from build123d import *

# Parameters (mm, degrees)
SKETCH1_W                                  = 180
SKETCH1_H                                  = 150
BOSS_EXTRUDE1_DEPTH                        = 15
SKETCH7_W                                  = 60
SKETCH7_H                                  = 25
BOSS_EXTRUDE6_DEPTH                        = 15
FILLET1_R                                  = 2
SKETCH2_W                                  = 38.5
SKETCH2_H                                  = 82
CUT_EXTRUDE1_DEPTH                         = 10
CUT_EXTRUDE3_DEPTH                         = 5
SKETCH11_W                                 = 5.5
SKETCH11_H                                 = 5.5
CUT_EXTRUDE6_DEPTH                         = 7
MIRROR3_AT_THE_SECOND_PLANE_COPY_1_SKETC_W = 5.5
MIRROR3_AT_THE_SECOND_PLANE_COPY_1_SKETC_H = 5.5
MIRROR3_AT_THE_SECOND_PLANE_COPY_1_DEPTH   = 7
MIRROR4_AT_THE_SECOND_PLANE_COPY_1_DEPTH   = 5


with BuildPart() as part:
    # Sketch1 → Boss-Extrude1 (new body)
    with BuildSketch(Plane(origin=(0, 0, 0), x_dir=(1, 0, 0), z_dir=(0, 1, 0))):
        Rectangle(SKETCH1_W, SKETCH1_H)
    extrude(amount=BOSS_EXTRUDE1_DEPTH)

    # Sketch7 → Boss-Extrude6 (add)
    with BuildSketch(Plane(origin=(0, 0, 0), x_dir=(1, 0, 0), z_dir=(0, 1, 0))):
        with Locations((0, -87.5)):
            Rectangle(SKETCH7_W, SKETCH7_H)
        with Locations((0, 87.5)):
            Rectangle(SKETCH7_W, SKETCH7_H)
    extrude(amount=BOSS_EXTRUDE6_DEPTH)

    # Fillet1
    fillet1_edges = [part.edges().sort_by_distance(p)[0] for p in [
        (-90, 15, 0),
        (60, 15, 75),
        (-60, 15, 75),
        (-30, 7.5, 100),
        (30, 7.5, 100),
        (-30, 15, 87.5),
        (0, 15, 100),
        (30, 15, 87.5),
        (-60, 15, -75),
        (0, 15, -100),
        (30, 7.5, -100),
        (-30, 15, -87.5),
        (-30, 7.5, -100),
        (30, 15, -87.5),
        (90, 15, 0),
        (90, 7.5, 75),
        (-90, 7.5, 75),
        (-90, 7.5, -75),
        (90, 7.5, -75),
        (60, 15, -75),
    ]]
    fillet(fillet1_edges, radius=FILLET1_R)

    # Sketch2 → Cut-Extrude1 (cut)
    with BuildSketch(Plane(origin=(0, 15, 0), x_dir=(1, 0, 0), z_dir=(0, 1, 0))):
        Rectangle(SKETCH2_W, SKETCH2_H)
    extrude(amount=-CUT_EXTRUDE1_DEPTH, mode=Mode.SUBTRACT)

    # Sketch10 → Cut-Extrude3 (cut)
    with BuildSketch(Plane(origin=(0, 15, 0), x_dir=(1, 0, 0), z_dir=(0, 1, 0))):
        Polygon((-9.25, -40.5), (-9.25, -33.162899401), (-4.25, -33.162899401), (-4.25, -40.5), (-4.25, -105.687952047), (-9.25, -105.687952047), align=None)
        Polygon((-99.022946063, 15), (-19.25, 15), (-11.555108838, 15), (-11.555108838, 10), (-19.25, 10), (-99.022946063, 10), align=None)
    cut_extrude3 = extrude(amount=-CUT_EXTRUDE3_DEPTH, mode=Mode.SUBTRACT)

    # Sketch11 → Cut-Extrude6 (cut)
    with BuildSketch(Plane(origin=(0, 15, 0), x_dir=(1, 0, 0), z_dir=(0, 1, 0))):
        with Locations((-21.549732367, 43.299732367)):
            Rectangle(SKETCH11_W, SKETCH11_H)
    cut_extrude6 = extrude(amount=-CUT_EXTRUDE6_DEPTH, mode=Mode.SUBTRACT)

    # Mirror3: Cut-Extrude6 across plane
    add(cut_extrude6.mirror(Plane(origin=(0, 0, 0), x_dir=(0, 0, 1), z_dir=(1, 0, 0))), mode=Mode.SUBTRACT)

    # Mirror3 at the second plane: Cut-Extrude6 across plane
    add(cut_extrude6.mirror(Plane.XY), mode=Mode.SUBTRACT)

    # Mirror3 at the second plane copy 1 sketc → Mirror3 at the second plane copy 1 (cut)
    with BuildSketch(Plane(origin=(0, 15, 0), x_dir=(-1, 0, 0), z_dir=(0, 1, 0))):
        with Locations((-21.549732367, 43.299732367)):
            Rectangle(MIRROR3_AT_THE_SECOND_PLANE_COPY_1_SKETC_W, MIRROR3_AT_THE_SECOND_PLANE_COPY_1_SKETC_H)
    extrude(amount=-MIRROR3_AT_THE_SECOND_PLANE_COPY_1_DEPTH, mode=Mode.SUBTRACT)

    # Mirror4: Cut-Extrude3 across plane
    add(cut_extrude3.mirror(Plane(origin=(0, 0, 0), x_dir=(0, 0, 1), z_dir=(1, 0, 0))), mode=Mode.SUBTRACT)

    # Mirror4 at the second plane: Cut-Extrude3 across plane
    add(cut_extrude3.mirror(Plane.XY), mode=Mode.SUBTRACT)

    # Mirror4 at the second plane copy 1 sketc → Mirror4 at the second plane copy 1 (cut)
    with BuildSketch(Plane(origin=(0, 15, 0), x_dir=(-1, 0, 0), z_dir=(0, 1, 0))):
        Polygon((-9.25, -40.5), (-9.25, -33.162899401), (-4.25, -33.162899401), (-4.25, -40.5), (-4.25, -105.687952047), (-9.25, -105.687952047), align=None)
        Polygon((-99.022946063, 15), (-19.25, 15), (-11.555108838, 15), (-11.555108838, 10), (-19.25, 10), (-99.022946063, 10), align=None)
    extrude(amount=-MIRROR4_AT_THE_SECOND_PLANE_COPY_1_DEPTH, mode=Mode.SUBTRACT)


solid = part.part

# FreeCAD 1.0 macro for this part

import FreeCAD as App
import Part
import Sketcher

V = App.Vector
Q = App.Units.Quantity


def edges_at(feature, points):
    """Names of the edges that pass closest to the given points."""
    edges = feature.Shape.Edges
    near = lambda p: min(range(len(edges)), key=lambda i: edges[i].distToShape(Part.Vertex(*p))[0])
    return sorted({f"Edge{near(p) + 1}" for p in points})


def add_polygon(sketch, points):
    """Adds a closed chain of lines whose ends are joined by coincident constraints."""
    first, n = sketch.GeometryCount, len(points)
    for a, b in zip(points, points[1:] + points[:1]):
        sketch.addGeometry(Part.LineSegment(App.Vector(*a, 0), App.Vector(*b, 0)), False)
    for i in range(n):
        sketch.addConstraint(Sketcher.Constraint("Coincident", first + i, 2, first + (i + 1) % n, 1))

doc = App.newDocument("Part")
body = doc.addObject("PartDesign::Body", "Body")

sketch1 = doc.addObject("Sketcher::SketchObject", "Sketch")
body.addObject(sketch1)
sketch1.AttachmentSupport = (doc.XZ_Plane, [""])
sketch1.MapMode = "FlatFace"
add_polygon(sketch1, [(-90, -75), (-90, 75), (90, 75), (90, -75)])
sketch1.addConstraint([
    Sketcher.Constraint("Vertical", 0),
    Sketcher.Constraint("Horizontal", 1),
    Sketcher.Constraint("Vertical", 2),
    Sketcher.Constraint("Horizontal", 3),
    Sketcher.Constraint("Symmetric", 0, 2, 2, 2, -1, 1),
    Sketcher.Constraint("DistanceX", 1, 1, 1, 2, Q("180 mm")),
    Sketcher.Constraint("DistanceY", 0, 1, 0, 2, Q("150 mm")),
])
pad1 = doc.addObject("PartDesign::Pad", "Pad")
body.addObject(pad1)
pad1.Profile = sketch1
pad1.Length = 15
pad1.Reversed = True

sketch2 = doc.addObject("Sketcher::SketchObject", "Sketch001")
body.addObject(sketch2)
sketch2.AttachmentSupport = (doc.XZ_Plane, [""])
sketch2.MapMode = "FlatFace"
add_polygon(sketch2, [(-30, 75), (-30, 100), (30, 100), (30, 75)])
add_polygon(sketch2, [(-30, -100), (-30, -75), (30, -75), (30, -100)])
sketch2.addConstraint([
    Sketcher.Constraint("Vertical", 0),
    Sketcher.Constraint("Horizontal", 1),
    Sketcher.Constraint("Vertical", 2),
    Sketcher.Constraint("Horizontal", 3),
    Sketcher.Constraint("Vertical", 4),
    Sketcher.Constraint("Horizontal", 5),
    Sketcher.Constraint("Vertical", 6),
    Sketcher.Constraint("Horizontal", 7),
    Sketcher.Constraint("Symmetric", 2, 2, 4, 2, -1, 1),
    Sketcher.Constraint("Symmetric", 0, 2, 6, 2, -1, 1),
    Sketcher.Constraint("Vertical", 3, 2, 4, 2),
    Sketcher.Constraint("DistanceX", 1, 1, 1, 2, Q("60 mm")),
    Sketcher.Constraint("DistanceY", 0, 1, 0, 2, Q("25 mm")),
    Sketcher.Constraint("DistanceY", -1, 1, 0, 2, Q("100 mm")),
])
pad2 = doc.addObject("PartDesign::Pad", "Pad001")
body.addObject(pad2)
pad2.Profile = sketch2
pad2.Length = 15
pad2.Reversed = True
doc.recompute()

fillet = doc.addObject("PartDesign::Fillet", "Fillet")
body.addObject(fillet)
fillet.Base = (pad2, edges_at(pad2, [
    (-90, 15, 0),
    (60, 15, 75),
    (-60, 15, 75),
    (-30, 7.5, 100),
    (30, 7.5, 100),
    (-30, 15, 87.5),
    (0, 15, 100),
    (30, 15, 87.5),
    (-60, 15, -75),
    (0, 15, -100),
    (30, 7.5, -100),
    (-30, 15, -87.5),
    (-30, 7.5, -100),
    (30, 15, -87.5),
    (90, 15, 0),
    (90, 7.5, 75),
    (-90, 7.5, 75),
    (-90, 7.5, -75),
    (90, 7.5, -75),
    (60, 15, -75),
]))
fillet.Radius = 2

sketch3 = doc.addObject("Sketcher::SketchObject", "Sketch002")
body.addObject(sketch3)
sketch3.AttachmentSupport = (doc.XZ_Plane, [""])
sketch3.MapMode = "FlatFace"
sketch3.AttachmentOffset = App.Placement(V(0, 0, -15), App.Rotation())
add_polygon(sketch3, [(-19, -41), (-19, 41), (19, 41), (19, -41)])
sketch3.addConstraint([
    Sketcher.Constraint("Vertical", 0),
    Sketcher.Constraint("Horizontal", 1),
    Sketcher.Constraint("Vertical", 2),
    Sketcher.Constraint("Horizontal", 3),
    Sketcher.Constraint("Symmetric", 0, 2, 2, 2, -1, 1),
    Sketcher.Constraint("DistanceY", 0, 1, 0, 2, Q("82 mm")),
    Sketcher.Constraint("DistanceX", 1, 1, 1, 2, Q("38.5 mm")),
])
pocket1 = doc.addObject("PartDesign::Pocket", "Pocket")
body.addObject(pocket1)
pocket1.Profile = sketch3
pocket1.Length = 10
pocket1.Reversed = True

sketch4 = doc.addObject("Sketcher::SketchObject", "Sketch003")
body.addObject(sketch4)
sketch4.AttachmentSupport = (doc.XZ_Plane, [""])
sketch4.MapMode = "FlatFace"
sketch4.AttachmentOffset = App.Placement(V(0, 0, -15), App.Rotation())
add_polygon(sketch4, [(-9, 33), (-9, 106), (-4, 106), (-4, 33)])
add_polygon(sketch4, [(-12, -15), (-99, -15), (-99, -10), (-12, -10)])
sketch4.addConstraint([
    Sketcher.Constraint("Vertical", 0),
    Sketcher.Constraint("Horizontal", 1),
    Sketcher.Constraint("Vertical", 2),
    Sketcher.Constraint("Horizontal", 3),
    Sketcher.Constraint("Horizontal", 4),
    Sketcher.Constraint("Vertical", 5),
    Sketcher.Constraint("Horizontal", 6),
    Sketcher.Constraint("Vertical", 7),
    Sketcher.Constraint("Equal", 3, 5),
    Sketcher.Constraint("DistanceX", 1, 1, 1, 2, Q("5 mm")),
    Sketcher.Constraint("DistanceY", 4, 2, -1, 1, Q("15 mm")),
    Sketcher.Constraint("DistanceX", 0, 2, -1, 1, Q("9.25 mm")),
    Sketcher.Constraint("DistanceY", -1, 1, 2, 2, Q("33.162899 mm")),
    Sketcher.Constraint("DistanceX", 4, 2, 4, 1, Q("87.467837 mm")),
    Sketcher.Constraint("DistanceY", 0, 1, 0, 2, Q("72.525053 mm")),
    Sketcher.Constraint("DistanceX", 6, 2, -1, 1, Q("11.555109 mm")),
])
pocket2 = doc.addObject("PartDesign::Pocket", "Pocket001")
body.addObject(pocket2)
pocket2.Profile = sketch4
pocket2.Length = 5
pocket2.Reversed = True

sketch5 = doc.addObject("Sketcher::SketchObject", "Sketch004")
body.addObject(sketch5)
sketch5.AttachmentSupport = (doc.XZ_Plane, [""])
sketch5.MapMode = "FlatFace"
sketch5.AttachmentOffset = App.Placement(V(0, 0, -15), App.Rotation())
add_polygon(sketch5, [(-24, -46), (-24, -41), (-19, -41), (-19, -46)])
sketch5.addConstraint([
    Sketcher.Constraint("Vertical", 0),
    Sketcher.Constraint("Horizontal", 1),
    Sketcher.Constraint("Vertical", 2),
    Sketcher.Constraint("Horizontal", 3),
    Sketcher.Constraint("Equal", 3, 0),
    Sketcher.Constraint("DistanceX", 1, 1, 1, 2, Q("5.5 mm")),
    Sketcher.Constraint("DistanceX", 0, 2, -1, 1, Q("24.299732 mm")),
    Sketcher.Constraint("DistanceY", 0, 2, -1, 1, Q("40.549732 mm")),
])
pocket3 = doc.addObject("PartDesign::Pocket", "Pocket002")
body.addObject(pocket3)
pocket3.Profile = sketch5
pocket3.Length = 7
pocket3.Reversed = True
doc.recompute()

mirrored = doc.addObject("PartDesign::Mirrored", "Mirrored")
body.addObject(mirrored)
mirrored.Originals = [pocket3]
mirrored.MirrorPlane = (doc.YZ_Plane, [""])
body.Tip = mirrored
doc.recompute()

mirrored2 = doc.addObject("PartDesign::Mirrored", "Mirrored001")
body.addObject(mirrored2)
mirrored2.Originals = [pocket3]
mirrored2.MirrorPlane = (doc.XY_Plane, [""])
body.Tip = mirrored2

sketch6 = doc.addObject("Sketcher::SketchObject", "Sketch005")
body.addObject(sketch6)
sketch6.AttachmentSupport = (doc.XZ_Plane, [""])
sketch6.MapMode = "FlatFace"
sketch6.AttachmentOffset = App.Placement(V(0, 0, -15), App.Rotation())
add_polygon(sketch6, [(24, 46), (24, 41), (19, 41), (19, 46)])
sketch6.addConstraint([
    Sketcher.Constraint("Vertical", 0),
    Sketcher.Constraint("Horizontal", 1),
    Sketcher.Constraint("Vertical", 2),
    Sketcher.Constraint("Horizontal", 3),
    Sketcher.Constraint("Equal", 3, 0),
    Sketcher.Constraint("DistanceX", 1, 2, 1, 1, Q("5.5 mm")),
    Sketcher.Constraint("DistanceX", -1, 1, 0, 2, Q("24.299732 mm")),
    Sketcher.Constraint("DistanceY", -1, 1, 0, 2, Q("40.549732 mm")),
])
pocket4 = doc.addObject("PartDesign::Pocket", "Pocket003")
body.addObject(pocket4)
pocket4.Profile = sketch6
pocket4.Length = 7
pocket4.Reversed = True
doc.recompute()

mirrored3 = doc.addObject("PartDesign::Mirrored", "Mirrored002")
body.addObject(mirrored3)
mirrored3.Originals = [pocket2]
mirrored3.MirrorPlane = (doc.YZ_Plane, [""])
body.Tip = mirrored3
doc.recompute()

mirrored4 = doc.addObject("PartDesign::Mirrored", "Mirrored003")
body.addObject(mirrored4)
mirrored4.Originals = [pocket2]
mirrored4.MirrorPlane = (doc.XY_Plane, [""])
body.Tip = mirrored4

sketch7 = doc.addObject("Sketcher::SketchObject", "Sketch006")
body.addObject(sketch7)
sketch7.AttachmentSupport = (doc.XZ_Plane, [""])
sketch7.MapMode = "FlatFace"
sketch7.AttachmentOffset = App.Placement(V(0, 0, -15), App.Rotation())
add_polygon(sketch7, [(9, -33), (9, -106), (4, -106), (4, -33)])
add_polygon(sketch7, [(12, 15), (99, 15), (99, 10), (12, 10)])
sketch7.addConstraint([
    Sketcher.Constraint("Vertical", 0),
    Sketcher.Constraint("Horizontal", 1),
    Sketcher.Constraint("Vertical", 2),
    Sketcher.Constraint("Horizontal", 3),
    Sketcher.Constraint("Horizontal", 4),
    Sketcher.Constraint("Vertical", 5),
    Sketcher.Constraint("Horizontal", 6),
    Sketcher.Constraint("Vertical", 7),
    Sketcher.Constraint("Equal", 3, 5),
    Sketcher.Constraint("DistanceX", 1, 2, 1, 1, Q("5 mm")),
    Sketcher.Constraint("DistanceY", -1, 1, 4, 2, Q("15 mm")),
    Sketcher.Constraint("DistanceX", -1, 1, 0, 2, Q("9.25 mm")),
    Sketcher.Constraint("DistanceY", 2, 2, -1, 1, Q("33.162899 mm")),
    Sketcher.Constraint("DistanceX", 4, 1, 4, 2, Q("87.467837 mm")),
    Sketcher.Constraint("DistanceY", 0, 2, 0, 1, Q("72.525053 mm")),
    Sketcher.Constraint("DistanceX", -1, 1, 6, 2, Q("11.555109 mm")),
])
pocket5 = doc.addObject("PartDesign::Pocket", "Pocket004")
body.addObject(pocket5)
pocket5.Profile = sketch7
pocket5.Length = 5
pocket5.Reversed = True

doc.recompute()
